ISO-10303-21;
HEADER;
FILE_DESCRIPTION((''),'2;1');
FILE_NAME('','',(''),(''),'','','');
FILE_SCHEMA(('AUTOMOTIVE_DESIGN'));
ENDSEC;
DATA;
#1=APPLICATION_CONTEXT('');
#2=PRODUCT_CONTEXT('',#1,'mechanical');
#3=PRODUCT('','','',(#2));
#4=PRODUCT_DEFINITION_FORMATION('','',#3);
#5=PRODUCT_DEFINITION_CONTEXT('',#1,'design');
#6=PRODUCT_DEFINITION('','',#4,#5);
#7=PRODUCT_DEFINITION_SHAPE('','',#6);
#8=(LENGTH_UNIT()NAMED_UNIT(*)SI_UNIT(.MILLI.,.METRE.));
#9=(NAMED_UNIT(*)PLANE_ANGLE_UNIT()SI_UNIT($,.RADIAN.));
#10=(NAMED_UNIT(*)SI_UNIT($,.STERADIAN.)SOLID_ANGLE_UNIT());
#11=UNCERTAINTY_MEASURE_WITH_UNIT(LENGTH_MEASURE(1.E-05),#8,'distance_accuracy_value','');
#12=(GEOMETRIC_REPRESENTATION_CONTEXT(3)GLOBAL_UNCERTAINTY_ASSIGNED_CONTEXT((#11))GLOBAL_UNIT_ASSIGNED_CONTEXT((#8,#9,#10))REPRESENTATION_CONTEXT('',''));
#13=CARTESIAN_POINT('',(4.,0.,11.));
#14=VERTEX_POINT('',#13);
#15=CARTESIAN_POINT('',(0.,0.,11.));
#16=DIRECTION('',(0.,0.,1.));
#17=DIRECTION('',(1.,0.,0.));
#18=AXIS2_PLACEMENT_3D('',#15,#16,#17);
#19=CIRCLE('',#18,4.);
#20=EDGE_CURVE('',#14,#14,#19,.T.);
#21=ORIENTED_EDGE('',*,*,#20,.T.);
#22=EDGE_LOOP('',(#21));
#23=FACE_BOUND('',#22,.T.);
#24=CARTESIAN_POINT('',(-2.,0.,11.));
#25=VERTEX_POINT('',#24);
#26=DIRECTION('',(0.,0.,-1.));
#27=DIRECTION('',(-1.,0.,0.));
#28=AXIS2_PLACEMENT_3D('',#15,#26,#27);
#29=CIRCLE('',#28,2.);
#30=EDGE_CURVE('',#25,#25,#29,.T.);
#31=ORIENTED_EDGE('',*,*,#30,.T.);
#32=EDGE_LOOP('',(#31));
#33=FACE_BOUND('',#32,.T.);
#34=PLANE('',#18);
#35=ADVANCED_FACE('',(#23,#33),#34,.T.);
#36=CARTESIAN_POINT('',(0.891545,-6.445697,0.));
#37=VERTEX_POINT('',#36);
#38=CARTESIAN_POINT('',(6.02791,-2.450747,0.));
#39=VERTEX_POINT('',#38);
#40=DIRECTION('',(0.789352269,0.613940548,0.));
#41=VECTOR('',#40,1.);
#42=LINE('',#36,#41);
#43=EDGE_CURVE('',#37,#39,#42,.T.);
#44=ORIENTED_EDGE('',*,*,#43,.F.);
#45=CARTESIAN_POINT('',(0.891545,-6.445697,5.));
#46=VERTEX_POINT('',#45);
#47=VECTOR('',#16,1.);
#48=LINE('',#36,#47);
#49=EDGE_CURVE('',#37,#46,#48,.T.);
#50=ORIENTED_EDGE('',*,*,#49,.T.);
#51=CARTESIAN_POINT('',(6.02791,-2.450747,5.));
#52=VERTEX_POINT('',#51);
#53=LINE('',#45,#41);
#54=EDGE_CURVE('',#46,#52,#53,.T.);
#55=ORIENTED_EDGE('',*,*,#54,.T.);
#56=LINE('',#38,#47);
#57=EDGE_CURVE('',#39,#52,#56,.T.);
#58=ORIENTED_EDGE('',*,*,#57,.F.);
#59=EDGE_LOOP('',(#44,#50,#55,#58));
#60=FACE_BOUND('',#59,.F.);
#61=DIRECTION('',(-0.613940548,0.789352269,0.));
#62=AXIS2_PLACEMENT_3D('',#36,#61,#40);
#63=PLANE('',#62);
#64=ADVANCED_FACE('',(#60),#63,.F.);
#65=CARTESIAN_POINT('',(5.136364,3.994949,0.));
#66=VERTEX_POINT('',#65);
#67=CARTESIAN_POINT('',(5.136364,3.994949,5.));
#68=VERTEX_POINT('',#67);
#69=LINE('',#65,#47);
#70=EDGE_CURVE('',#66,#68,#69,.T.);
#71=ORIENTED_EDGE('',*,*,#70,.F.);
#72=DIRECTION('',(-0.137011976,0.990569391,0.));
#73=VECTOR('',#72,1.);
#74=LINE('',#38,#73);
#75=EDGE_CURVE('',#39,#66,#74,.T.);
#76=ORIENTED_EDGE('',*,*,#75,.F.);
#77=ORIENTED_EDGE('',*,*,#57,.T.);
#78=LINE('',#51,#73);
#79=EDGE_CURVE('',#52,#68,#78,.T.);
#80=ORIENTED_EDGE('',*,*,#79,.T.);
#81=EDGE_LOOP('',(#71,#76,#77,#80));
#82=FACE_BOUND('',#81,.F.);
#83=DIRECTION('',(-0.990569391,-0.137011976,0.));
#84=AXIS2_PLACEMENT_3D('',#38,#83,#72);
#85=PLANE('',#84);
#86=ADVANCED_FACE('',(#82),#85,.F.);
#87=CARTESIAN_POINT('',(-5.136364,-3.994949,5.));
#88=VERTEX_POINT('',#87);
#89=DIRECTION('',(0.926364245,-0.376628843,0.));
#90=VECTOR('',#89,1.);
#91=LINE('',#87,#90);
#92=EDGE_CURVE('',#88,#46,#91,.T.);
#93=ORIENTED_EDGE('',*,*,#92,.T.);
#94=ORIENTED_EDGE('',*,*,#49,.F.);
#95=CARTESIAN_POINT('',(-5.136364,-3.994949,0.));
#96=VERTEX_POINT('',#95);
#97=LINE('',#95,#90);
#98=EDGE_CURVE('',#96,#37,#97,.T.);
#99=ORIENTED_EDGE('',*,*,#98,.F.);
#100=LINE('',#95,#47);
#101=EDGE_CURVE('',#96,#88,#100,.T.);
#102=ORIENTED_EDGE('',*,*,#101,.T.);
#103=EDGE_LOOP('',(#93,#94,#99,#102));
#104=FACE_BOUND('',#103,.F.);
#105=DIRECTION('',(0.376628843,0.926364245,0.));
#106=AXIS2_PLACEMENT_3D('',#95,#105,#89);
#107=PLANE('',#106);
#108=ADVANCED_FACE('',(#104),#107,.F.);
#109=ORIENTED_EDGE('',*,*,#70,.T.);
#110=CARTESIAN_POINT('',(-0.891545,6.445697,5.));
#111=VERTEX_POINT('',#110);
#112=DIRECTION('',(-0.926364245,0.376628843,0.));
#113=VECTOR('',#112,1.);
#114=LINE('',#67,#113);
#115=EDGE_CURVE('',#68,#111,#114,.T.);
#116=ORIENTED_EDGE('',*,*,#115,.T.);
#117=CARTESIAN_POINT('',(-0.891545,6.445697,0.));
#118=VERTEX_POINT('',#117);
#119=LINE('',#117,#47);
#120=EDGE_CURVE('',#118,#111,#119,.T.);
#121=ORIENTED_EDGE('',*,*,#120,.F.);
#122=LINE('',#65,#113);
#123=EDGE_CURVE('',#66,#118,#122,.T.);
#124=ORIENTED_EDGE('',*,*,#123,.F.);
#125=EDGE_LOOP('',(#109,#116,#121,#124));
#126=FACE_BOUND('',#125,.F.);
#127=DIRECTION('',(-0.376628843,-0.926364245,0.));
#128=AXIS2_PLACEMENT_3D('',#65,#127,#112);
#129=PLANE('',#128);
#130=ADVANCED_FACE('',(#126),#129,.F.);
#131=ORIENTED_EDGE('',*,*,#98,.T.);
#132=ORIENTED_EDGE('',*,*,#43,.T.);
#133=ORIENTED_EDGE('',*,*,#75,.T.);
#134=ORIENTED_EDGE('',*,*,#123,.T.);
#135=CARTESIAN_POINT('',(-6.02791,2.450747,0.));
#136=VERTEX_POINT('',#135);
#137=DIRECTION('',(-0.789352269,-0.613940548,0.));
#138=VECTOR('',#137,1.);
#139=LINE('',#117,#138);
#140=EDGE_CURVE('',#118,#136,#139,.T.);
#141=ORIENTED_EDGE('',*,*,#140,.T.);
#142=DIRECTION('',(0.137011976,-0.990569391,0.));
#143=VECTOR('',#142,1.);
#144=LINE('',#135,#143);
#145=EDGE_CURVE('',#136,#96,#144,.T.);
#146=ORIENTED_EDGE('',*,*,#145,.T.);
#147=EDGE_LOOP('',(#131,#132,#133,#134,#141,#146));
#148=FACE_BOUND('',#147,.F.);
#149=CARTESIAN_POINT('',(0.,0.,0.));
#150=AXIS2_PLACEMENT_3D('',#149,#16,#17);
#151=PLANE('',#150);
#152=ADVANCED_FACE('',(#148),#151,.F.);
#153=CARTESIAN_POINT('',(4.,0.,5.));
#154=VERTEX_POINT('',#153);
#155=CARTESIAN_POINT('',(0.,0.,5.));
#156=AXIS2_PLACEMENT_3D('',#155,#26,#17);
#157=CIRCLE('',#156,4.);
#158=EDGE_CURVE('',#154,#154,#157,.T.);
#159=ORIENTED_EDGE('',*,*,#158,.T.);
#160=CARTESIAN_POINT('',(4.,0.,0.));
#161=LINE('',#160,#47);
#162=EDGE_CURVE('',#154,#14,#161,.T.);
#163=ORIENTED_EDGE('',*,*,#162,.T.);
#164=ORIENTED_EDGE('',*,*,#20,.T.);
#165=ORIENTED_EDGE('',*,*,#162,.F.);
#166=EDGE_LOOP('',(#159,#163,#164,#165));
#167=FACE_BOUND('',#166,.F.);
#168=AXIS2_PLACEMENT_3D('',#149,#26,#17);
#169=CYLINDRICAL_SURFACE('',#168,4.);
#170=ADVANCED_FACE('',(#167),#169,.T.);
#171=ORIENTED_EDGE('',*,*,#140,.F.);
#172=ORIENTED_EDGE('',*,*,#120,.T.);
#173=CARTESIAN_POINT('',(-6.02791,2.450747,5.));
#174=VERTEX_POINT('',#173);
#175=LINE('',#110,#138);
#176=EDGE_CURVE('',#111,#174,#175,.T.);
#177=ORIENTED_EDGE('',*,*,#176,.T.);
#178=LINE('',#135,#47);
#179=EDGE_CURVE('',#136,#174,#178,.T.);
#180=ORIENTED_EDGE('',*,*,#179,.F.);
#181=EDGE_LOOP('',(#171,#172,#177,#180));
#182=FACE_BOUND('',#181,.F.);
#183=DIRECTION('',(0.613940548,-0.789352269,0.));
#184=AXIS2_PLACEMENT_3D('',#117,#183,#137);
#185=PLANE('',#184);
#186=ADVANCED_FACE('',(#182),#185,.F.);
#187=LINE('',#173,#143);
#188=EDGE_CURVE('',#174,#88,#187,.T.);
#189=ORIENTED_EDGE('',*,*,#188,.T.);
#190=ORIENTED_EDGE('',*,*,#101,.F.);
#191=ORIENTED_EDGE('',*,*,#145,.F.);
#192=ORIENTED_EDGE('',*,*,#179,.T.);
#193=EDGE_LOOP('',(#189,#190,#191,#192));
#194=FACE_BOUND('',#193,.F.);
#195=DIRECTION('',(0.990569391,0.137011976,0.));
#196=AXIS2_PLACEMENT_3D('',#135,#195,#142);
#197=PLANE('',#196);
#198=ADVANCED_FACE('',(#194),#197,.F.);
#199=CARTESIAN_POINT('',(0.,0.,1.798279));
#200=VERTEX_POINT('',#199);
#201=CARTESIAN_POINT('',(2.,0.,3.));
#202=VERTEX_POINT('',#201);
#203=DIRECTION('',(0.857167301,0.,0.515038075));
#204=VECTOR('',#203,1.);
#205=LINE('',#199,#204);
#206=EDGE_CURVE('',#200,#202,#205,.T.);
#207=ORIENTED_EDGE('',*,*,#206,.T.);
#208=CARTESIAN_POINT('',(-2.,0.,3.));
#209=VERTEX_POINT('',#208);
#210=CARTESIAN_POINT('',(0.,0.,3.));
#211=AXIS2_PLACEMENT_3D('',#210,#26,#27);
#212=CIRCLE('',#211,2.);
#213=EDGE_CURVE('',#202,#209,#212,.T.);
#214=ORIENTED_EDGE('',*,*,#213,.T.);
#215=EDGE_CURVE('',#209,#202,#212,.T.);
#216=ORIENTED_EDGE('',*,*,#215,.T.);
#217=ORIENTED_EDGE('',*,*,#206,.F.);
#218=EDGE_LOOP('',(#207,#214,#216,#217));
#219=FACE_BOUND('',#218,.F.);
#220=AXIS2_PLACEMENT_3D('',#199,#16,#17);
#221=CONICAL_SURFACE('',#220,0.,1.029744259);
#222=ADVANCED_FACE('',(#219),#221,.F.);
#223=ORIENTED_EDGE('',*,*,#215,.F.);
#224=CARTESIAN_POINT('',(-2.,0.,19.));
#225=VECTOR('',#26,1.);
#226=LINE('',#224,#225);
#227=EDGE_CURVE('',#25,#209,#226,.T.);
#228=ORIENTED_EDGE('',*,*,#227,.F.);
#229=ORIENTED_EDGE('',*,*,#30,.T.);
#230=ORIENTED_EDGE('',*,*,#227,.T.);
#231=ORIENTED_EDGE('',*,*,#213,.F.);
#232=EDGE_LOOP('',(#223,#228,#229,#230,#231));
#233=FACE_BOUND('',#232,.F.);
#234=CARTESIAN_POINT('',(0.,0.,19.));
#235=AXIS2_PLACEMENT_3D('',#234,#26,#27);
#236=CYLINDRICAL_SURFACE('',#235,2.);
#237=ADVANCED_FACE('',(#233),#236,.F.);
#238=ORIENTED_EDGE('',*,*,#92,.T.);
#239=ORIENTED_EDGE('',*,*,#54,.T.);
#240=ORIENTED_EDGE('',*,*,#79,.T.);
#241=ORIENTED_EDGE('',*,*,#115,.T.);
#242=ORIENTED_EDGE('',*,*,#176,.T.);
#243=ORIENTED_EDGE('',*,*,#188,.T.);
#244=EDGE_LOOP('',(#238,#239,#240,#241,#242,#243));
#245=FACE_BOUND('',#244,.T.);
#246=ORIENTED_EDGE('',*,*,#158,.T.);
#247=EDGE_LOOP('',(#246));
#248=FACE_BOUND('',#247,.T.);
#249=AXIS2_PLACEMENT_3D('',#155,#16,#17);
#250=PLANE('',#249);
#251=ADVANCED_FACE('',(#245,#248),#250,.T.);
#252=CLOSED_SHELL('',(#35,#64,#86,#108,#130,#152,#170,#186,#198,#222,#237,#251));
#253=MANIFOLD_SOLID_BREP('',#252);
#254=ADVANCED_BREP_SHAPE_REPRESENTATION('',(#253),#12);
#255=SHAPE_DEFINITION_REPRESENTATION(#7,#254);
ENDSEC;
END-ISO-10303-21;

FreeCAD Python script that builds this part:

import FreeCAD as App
import Part
import Sketcher
from FreeCAD import Vector
Q = App.Units.Quantity


def add_polygon(sketch, points):
    """Adds a closed chain of lines whose ends are joined by coincident constraints."""
    first, n = sketch.GeometryCount, len(points)
    for a, b in zip(points, points[1:] + points[:1]):
        sketch.addGeometry(Part.LineSegment(App.Vector(*a, 0), App.Vector(*b, 0)), False)
    for i in range(n):
        sketch.addConstraint(Sketcher.Constraint("Coincident", first + i, 2, first + (i + 1) % n, 1))

doc = App.newDocument("Part")
body = doc.addObject("PartDesign::Body", "Body")

sketch1 = body.newObject("Sketcher::SketchObject", "Sketch")
sketch1.AttachmentSupport = (doc.getObject("XY_Plane"), [""])
sketch1.MapMode = "FlatFace"
sketch1.addGeometry(Part.Circle(Vector(0, 0, 0), Vector(0, 0, 1), 4), False)
sketch1.addConstraint([
    Sketcher.Constraint("Coincident", 0, 3, -1, 1),
    Sketcher.Constraint("Diameter", 0, Q("8 mm")),
])
pad1 = body.newObject("PartDesign::Pad", "Pad")
pad1.Profile = sketch1
pad1.Length = 11

sketch2 = body.newObject("Sketcher::SketchObject", "Sketch001")
sketch2.AttachmentSupport = (doc.getObject("XY_Plane"), [""])
sketch2.MapMode = "FlatFace"
add_polygon(sketch2, [(1, -6), (6, -2), (5, 4), (-1, 6), (-6, 2), (-5, -4)])
sketch2.addConstraint([
    Sketcher.Constraint("Symmetric", 0, 2, 3, 2, -1, 1),
    Sketcher.Constraint("Symmetric", 1, 2, 4, 2, -1, 1),
    Sketcher.Constraint("Symmetric", 2, 2, 5, 2, -1, 1),
    Sketcher.Constraint("Equal", 0, 1),
    Sketcher.Constraint("Equal", 1, 2),
    Sketcher.Constraint("DistanceY", 4, 2, 1, 2, Q("7.989899 mm")),
    Sketcher.Constraint("DistanceX", -1, 1, 0, 2, Q("6.02791 mm")),
    Sketcher.Constraint("DistanceX", 2, 2, 1, 2, Q("6.02791 mm")),
    Sketcher.Constraint("DistanceY", 3, 2, 2, 2, Q("3.994949 mm")),
])
pad2 = body.newObject("PartDesign::Pad", "Pad001")
pad2.Profile = sketch2
pad2.Length = 5

sketch3 = body.newObject("Sketcher::SketchObject", "Sketch002")
sketch3.AttachmentSupport = (doc.getObject("XY_Plane"), [""])
sketch3.MapMode = "FlatFace"
sketch3.AttachmentOffset = App.Placement(Vector(0, 0, 11), App.Rotation())
sketch3.addGeometry(Part.Circle(Vector(0, 0, 0), Vector(0, 0, 1), 2), False)
sketch3.addConstraint([
    Sketcher.Constraint("Coincident", 0, 3, -1, 1),
    Sketcher.Constraint("Diameter", 0, Q("4 mm")),
])
doc.recompute()
hole = body.newObject("PartDesign::Hole", "Hole")
hole.Profile = sketch3
hole.ThreadType = "None"
hole.Diameter = 4
hole.DepthType = "Dimension"
hole.Depth = 8
hole.DrillPoint = "Angled"
hole.DrillPointAngle = 118

doc.recompute()
